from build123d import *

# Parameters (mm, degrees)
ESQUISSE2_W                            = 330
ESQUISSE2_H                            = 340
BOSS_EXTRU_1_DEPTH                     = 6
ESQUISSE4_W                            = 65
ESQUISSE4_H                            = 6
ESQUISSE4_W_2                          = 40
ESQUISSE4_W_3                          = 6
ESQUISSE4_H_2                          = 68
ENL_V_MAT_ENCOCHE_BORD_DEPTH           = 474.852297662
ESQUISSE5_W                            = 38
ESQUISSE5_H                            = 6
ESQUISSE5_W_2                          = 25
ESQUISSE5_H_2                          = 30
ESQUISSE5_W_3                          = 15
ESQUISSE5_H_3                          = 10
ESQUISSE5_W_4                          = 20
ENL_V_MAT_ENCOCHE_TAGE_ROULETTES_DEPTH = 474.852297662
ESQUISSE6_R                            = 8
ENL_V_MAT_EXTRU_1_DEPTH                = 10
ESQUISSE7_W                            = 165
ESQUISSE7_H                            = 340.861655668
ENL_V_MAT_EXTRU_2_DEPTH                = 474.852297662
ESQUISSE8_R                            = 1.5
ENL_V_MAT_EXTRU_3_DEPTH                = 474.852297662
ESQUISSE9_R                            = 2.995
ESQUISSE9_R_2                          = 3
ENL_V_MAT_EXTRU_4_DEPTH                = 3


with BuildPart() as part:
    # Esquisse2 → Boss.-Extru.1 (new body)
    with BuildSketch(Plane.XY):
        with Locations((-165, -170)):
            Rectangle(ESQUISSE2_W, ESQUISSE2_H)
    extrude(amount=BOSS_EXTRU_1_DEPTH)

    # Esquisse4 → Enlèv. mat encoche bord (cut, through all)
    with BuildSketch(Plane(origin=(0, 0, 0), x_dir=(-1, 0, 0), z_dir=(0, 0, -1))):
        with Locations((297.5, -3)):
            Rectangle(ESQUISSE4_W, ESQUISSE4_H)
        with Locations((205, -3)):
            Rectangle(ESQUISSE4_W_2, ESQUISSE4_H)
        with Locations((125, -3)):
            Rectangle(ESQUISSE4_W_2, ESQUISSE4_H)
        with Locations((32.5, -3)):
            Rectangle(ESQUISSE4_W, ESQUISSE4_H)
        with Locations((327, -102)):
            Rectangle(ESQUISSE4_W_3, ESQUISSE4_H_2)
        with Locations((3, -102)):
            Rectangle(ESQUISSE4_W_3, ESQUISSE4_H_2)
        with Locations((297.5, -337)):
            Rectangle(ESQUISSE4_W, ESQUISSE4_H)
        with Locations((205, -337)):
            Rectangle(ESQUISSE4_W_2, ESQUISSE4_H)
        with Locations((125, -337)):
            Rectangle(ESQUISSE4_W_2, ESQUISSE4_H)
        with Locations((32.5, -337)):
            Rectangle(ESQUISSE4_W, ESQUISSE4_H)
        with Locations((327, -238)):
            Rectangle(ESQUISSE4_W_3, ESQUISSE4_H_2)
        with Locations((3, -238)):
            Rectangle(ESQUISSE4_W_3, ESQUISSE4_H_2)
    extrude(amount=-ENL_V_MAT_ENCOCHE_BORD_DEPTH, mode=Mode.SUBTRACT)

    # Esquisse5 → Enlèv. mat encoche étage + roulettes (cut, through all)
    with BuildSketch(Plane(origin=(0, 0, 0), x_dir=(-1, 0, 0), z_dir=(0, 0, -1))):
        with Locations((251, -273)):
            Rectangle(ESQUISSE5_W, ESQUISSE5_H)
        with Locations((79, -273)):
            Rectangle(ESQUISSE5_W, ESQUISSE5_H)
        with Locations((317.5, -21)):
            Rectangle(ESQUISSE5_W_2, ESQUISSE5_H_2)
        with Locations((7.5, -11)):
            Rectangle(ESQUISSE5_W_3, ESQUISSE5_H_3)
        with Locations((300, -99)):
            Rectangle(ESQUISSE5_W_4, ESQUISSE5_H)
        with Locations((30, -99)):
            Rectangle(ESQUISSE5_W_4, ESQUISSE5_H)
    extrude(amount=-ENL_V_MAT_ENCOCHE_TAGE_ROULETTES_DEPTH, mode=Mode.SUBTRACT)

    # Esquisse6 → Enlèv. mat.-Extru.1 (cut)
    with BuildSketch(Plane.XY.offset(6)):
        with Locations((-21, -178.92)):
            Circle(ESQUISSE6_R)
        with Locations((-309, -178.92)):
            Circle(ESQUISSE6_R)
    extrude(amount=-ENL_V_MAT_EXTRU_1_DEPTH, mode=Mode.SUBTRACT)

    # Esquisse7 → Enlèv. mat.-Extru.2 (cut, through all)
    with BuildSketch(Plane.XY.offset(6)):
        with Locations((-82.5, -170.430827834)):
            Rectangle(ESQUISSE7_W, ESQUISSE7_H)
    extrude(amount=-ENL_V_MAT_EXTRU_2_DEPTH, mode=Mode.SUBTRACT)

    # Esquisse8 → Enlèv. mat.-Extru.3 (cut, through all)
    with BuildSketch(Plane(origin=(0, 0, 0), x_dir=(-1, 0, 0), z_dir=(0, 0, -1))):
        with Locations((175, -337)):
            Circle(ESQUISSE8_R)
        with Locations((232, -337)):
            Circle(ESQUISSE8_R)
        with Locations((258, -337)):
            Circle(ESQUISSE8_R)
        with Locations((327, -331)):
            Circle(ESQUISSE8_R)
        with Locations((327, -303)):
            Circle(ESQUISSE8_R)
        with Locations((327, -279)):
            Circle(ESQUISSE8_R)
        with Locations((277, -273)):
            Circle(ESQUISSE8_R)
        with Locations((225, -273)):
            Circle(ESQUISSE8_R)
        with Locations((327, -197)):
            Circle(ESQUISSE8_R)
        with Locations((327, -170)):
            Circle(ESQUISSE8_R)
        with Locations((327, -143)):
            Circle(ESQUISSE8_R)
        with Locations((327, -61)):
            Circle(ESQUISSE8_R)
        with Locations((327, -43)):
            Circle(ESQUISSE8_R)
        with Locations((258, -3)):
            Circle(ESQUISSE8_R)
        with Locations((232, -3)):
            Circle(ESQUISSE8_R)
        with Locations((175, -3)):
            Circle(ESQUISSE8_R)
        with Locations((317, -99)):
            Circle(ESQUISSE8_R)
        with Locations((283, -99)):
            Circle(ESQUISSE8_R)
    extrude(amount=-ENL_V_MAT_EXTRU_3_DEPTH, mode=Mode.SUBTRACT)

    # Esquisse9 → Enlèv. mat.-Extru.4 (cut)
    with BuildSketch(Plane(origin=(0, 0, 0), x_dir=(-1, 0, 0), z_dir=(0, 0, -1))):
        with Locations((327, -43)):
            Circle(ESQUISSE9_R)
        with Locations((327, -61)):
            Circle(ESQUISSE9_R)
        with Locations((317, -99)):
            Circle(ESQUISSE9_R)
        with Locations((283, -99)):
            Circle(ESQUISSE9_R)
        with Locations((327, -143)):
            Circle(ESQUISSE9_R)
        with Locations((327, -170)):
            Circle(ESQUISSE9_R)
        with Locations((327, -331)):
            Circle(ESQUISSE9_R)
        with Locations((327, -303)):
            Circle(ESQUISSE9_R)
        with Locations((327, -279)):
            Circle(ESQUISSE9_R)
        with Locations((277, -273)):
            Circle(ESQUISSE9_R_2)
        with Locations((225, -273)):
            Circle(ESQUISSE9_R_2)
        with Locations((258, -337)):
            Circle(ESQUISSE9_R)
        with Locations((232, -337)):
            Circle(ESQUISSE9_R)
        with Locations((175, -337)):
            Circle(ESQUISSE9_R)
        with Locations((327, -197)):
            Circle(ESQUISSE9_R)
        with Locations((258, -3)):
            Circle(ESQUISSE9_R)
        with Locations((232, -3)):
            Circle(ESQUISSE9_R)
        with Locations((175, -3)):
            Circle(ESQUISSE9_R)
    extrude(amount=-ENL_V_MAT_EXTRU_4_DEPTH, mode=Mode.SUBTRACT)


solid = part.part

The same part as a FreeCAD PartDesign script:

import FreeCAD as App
import Part
import Sketcher
from FreeCAD import Vector
Q = App.Units.Quantity

doc = App.newDocument("Part")
body = doc.addObject("PartDesign::Body", "Body")

# Sketch on XY plane
sketch1 = body.newObject("Sketcher::SketchObject", "Sketch")
sketch1.AttachmentSupport = (doc.getObject("XY_Plane"), [""])
sketch1.MapMode = "FlatFace"
sketch1.addGeometry(Part.LineSegment(Vector(-330, 0, 0), Vector(-330, -340, 0)), False)
sketch1.addGeometry(Part.LineSegment(Vector(-330, -340, 0), Vector(0, -340, 0)), False)
sketch1.addGeometry(Part.LineSegment(Vector(0, -340, 0), Vector(0, 0, 0)), False)
sketch1.addGeometry(Part.LineSegment(Vector(0, 0, 0), Vector(-330, 0, 0)), False)
sketch1.addConstraint(Sketcher.Constraint("Coincident", 0, 2, 1, 1))
sketch1.addConstraint(Sketcher.Constraint("Coincident", 1, 2, 2, 1))
sketch1.addConstraint(Sketcher.Constraint("Coincident", 2, 2, 3, 1))
sketch1.addConstraint(Sketcher.Constraint("Coincident", 3, 2, 0, 1))
sketch1.addConstraint(Sketcher.Constraint("Vertical", 0))
sketch1.addConstraint(Sketcher.Constraint("Horizontal", 1))
sketch1.addConstraint(Sketcher.Constraint("Vertical", 2))
sketch1.addConstraint(Sketcher.Constraint("Horizontal", 3))
sketch1.addConstraint(Sketcher.Constraint("Coincident", 2, 2, -1, 1))
sketch1.addConstraint(Sketcher.Constraint("DistanceX", 1, 1, 1, 2, Q("330 mm")))
sketch1.addConstraint(Sketcher.Constraint("DistanceY", 0, 2, 0, 1, Q("340 mm")))
pad1 = body.newObject("PartDesign::Pad", "Pad")
pad1.Profile = sketch1
pad1.Length = 6

# Sketch on XY plane
sketch2 = body.newObject("Sketcher::SketchObject", "Sketch001")
sketch2.AttachmentSupport = (doc.getObject("XY_Plane"), [""])
sketch2.MapMode = "FlatFace"
sketch2.addGeometry(Part.LineSegment(Vector(-265, 0, 0), Vector(-265, -6, 0)), False)
sketch2.addGeometry(Part.LineSegment(Vector(-265, -6, 0), Vector(-330, -6, 0)), False)
sketch2.addGeometry(Part.LineSegment(Vector(-330, -6, 0), Vector(-330, 0, 0)), False)
sketch2.addGeometry(Part.LineSegment(Vector(-330, 0, 0), Vector(-265, 0, 0)), False)
sketch2.addGeometry(Part.LineSegment(Vector(-185, 0, 0), Vector(-185, -6, 0)), False)
sketch2.addGeometry(Part.LineSegment(Vector(-185, -6, 0), Vector(-225, -6, 0)), False)
sketch2.addGeometry(Part.LineSegment(Vector(-225, -6, 0), Vector(-225, 0, 0)), False)
sketch2.addGeometry(Part.LineSegment(Vector(-225, 0, 0), Vector(-185, 0, 0)), False)
sketch2.addGeometry(Part.LineSegment(Vector(-105, 0, 0), Vector(-105, -6, 0)), False)
sketch2.addGeometry(Part.LineSegment(Vector(-105, -6, 0), Vector(-145, -6, 0)), False)
sketch2.addGeometry(Part.LineSegment(Vector(-145, -6, 0), Vector(-145, 0, 0)), False)
sketch2.addGeometry(Part.LineSegment(Vector(-145, 0, 0), Vector(-105, 0, 0)), False)
sketch2.addGeometry(Part.LineSegment(Vector(0, 0, 0), Vector(0, -6, 0)), False)
sketch2.addGeometry(Part.LineSegment(Vector(0, -6, 0), Vector(-65, -6, 0)), False)
sketch2.addGeometry(Part.LineSegment(Vector(-65, -6, 0), Vector(-65, 0, 0)), False)
sketch2.addGeometry(Part.LineSegment(Vector(-65, 0, 0), Vector(0, 0, 0)), False)
sketch2.addGeometry(Part.LineSegment(Vector(-324, -68, 0), Vector(-324, -136, 0)), False)
sketch2.addGeometry(Part.LineSegment(Vector(-324, -136, 0), Vector(-330, -136, 0)), False)
sketch2.addGeometry(Part.LineSegment(Vector(-330, -136, 0), Vector(-330, -68, 0)), False)
sketch2.addGeometry(Part.LineSegment(Vector(-330, -68, 0), Vector(-324, -68, 0)), False)
sketch2.addGeometry(Part.LineSegment(Vector(0, -68, 0), Vector(0, -136, 0)), False)
sketch2.addGeometry(Part.LineSegment(Vector(0, -136, 0), Vector(-6, -136, 0)), False)
sketch2.addGeometry(Part.LineSegment(Vector(-6, -136, 0), Vector(-6, -68, 0)), False)
sketch2.addGeometry(Part.LineSegment(Vector(-6, -68, 0), Vector(0, -68, 0)), False)
sketch2.addGeometry(Part.LineSegment(Vector(-265, -334, 0), Vector(-265, -340, 0)), False)
sketch2.addGeometry(Part.LineSegment(Vector(-265, -340, 0), Vector(-330, -340, 0)), False)
sketch2.addGeometry(Part.LineSegment(Vector(-330, -340, 0), Vector(-330, -334, 0)), False)
sketch2.addGeometry(Part.LineSegment(Vector(-330, -334, 0), Vector(-265, -334, 0)), False)
sketch2.addGeometry(Part.LineSegment(Vector(-185, -334, 0), Vector(-185, -340, 0)), False)
sketch2.addGeometry(Part.LineSegment(Vector(-185, -340, 0), Vector(-225, -340, 0)), False)
sketch2.addGeometry(Part.LineSegment(Vector(-225, -340, 0), Vector(-225, -334, 0)), False)
sketch2.addGeometry(Part.LineSegment(Vector(-225, -334, 0), Vector(-185, -334, 0)), False)
sketch2.addGeometry(Part.LineSegment(Vector(-105, -334, 0), Vector(-105, -340, 0)), False)
sketch2.addGeometry(Part.LineSegment(Vector(-105, -340, 0), Vector(-145, -340, 0)), False)
sketch2.addGeometry(Part.LineSegment(Vector(-145, -340, 0), Vector(-145, -334, 0)), False)
sketch2.addGeometry(Part.LineSegment(Vector(-145, -334, 0), Vector(-105, -334, 0)), False)
sketch2.addGeometry(Part.LineSegment(Vector(0, -334, 0), Vector(0, -340, 0)), False)
sketch2.addGeometry(Part.LineSegment(Vector(0, -340, 0), Vector(-65, -340, 0)), False)
sketch2.addGeometry(Part.LineSegment(Vector(-65, -340, 0), Vector(-65, -334, 0)), False)
sketch2.addGeometry(Part.LineSegment(Vector(-65, -334, 0), Vector(0, -334, 0)), False)
sketch2.addGeometry(Part.LineSegment(Vector(-324, -204, 0), Vector(-324, -272, 0)), False)
sketch2.addGeometry(Part.LineSegment(Vector(-324, -272, 0), Vector(-330, -272, 0)), False)
sketch2.addGeometry(Part.LineSegment(Vector(-330, -272, 0), Vector(-330, -204, 0)), False)
sketch2.addGeometry(Part.LineSegment(Vector(-330, -204, 0), Vector(-324, -204, 0)), False)
sketch2.addGeometry(Part.LineSegment(Vector(0, -204, 0), Vector(0, -272, 0)), False)
sketch2.addGeometry(Part.LineSegment(Vector(0, -272, 0), Vector(-6, -272, 0)), False)
sketch2.addGeometry(Part.LineSegment(Vector(-6, -272, 0), Vector(-6, -204, 0)), False)
sketch2.addGeometry(Part.LineSegment(Vector(-6, -204, 0), Vector(0, -204, 0)), False)
sketch2.addConstraint(Sketcher.Constraint("Coincident", 0, 2, 1, 1))
sketch2.addConstraint(Sketcher.Constraint("Coincident", 1, 2, 2, 1))
sketch2.addConstraint(Sketcher.Constraint("Coincident", 2, 2, 3, 1))
sketch2.addConstraint(Sketcher.Constraint("Coincident", 3, 2, 0, 1))
sketch2.addConstraint(Sketcher.Constraint("Coincident", 4, 2, 5, 1))
sketch2.addConstraint(Sketcher.Constraint("Coincident", 5, 2, 6, 1))
sketch2.addConstraint(Sketcher.Constraint("Coincident", 6, 2, 7, 1))
sketch2.addConstraint(Sketcher.Constraint("Coincident", 7, 2, 4, 1))
sketch2.addConstraint(Sketcher.Constraint("Coincident", 8, 2, 9, 1))
sketch2.addConstraint(Sketcher.Constraint("Coincident", 9, 2, 10, 1))
sketch2.addConstraint(Sketcher.Constraint("Coincident", 10, 2, 11, 1))
sketch2.addConstraint(Sketcher.Constraint("Coincident", 11, 2, 8, 1))
sketch2.addConstraint(Sketcher.Constraint("Coincident", 12, 2, 13, 1))
sketch2.addConstraint(Sketcher.Constraint("Coincident", 13, 2, 14, 1))
sketch2.addConstraint(Sketcher.Constraint("Coincident", 14, 2, 15, 1))
sketch2.addConstraint(Sketcher.Constraint("Coincident", 15, 2, 12, 1))
sketch2.addConstraint(Sketcher.Constraint("Coincident", 16, 2, 17, 1))
sketch2.addConstraint(Sketcher.Constraint("Coincident", 17, 2, 18, 1))
sketch2.addConstraint(Sketcher.Constraint("Coincident", 18, 2, 19, 1))
sketch2.addConstraint(Sketcher.Constraint("Coincident", 19, 2, 16, 1))
sketch2.addConstraint(Sketcher.Constraint("Coincident", 20, 2, 21, 1))
sketch2.addConstraint(Sketcher.Constraint("Coincident", 21, 2, 22, 1))
sketch2.addConstraint(Sketcher.Constraint("Coincident", 22, 2, 23, 1))
sketch2.addConstraint(Sketcher.Constraint("Coincident", 23, 2, 20, 1))
sketch2.addConstraint(Sketcher.Constraint("Coincident", 24, 2, 25, 1))
sketch2.addConstraint(Sketcher.Constraint("Coincident", 25, 2, 26, 1))
sketch2.addConstraint(Sketcher.Constraint("Coincident", 26, 2, 27, 1))
sketch2.addConstraint(Sketcher.Constraint("Coincident", 27, 2, 24, 1))
sketch2.addConstraint(Sketcher.Constraint("Coincident", 28, 2, 29, 1))
sketch2.addConstraint(Sketcher.Constraint("Coincident", 29, 2, 30, 1))
sketch2.addConstraint(Sketcher.Constraint("Coincident", 30, 2, 31, 1))
sketch2.addConstraint(Sketcher.Constraint("Coincident", 31, 2, 28, 1))
sketch2.addConstraint(Sketcher.Constraint("Coincident", 32, 2, 33, 1))
sketch2.addConstraint(Sketcher.Constraint("Coincident", 33, 2, 34, 1))
sketch2.addConstraint(Sketcher.Constraint("Coincident", 34, 2, 35, 1))
sketch2.addConstraint(Sketcher.Constraint("Coincident", 35, 2, 32, 1))
sketch2.addConstraint(Sketcher.Constraint("Coincident", 36, 2, 37, 1))
sketch2.addConstraint(Sketcher.Constraint("Coincident", 37, 2, 38, 1))
sketch2.addConstraint(Sketcher.Constraint("Coincident", 38, 2, 39, 1))
sketch2.addConstraint(Sketcher.Constraint("Coincident", 39, 2, 36, 1))
sketch2.addConstraint(Sketcher.Constraint("Coincident", 40, 2, 41, 1))
sketch2.addConstraint(Sketcher.Constraint("Coincident", 41, 2, 42, 1))
sketch2.addConstraint(Sketcher.Constraint("Coincident", 42, 2, 43, 1))
sketch2.addConstraint(Sketcher.Constraint("Coincident", 43, 2, 40, 1))
sketch2.addConstraint(Sketcher.Constraint("Coincident", 44, 2, 45, 1))
sketch2.addConstraint(Sketcher.Constraint("Coincident", 45, 2, 46, 1))
sketch2.addConstraint(Sketcher.Constraint("Coincident", 46, 2, 47, 1))
sketch2.addConstraint(Sketcher.Constraint("Coincident", 47, 2, 44, 1))
sketch2.addConstraint(Sketcher.Constraint("Vertical", 0))
sketch2.addConstraint(Sketcher.Constraint("Horizontal", 1))
sketch2.addConstraint(Sketcher.Constraint("Vertical", 2))
sketch2.addConstraint(Sketcher.Constraint("Horizontal", 3))
sketch2.addConstraint(Sketcher.Constraint("Vertical", 4))
sketch2.addConstraint(Sketcher.Constraint("Horizontal", 5))
sketch2.addConstraint(Sketcher.Constraint("Vertical", 6))
sketch2.addConstraint(Sketcher.Constraint("Horizontal", 7))
sketch2.addConstraint(Sketcher.Constraint("Vertical", 8))
sketch2.addConstraint(Sketcher.Constraint("Horizontal", 9))
sketch2.addConstraint(Sketcher.Constraint("Vertical", 10))
sketch2.addConstraint(Sketcher.Constraint("Horizontal", 11))
sketch2.addConstraint(Sketcher.Constraint("Vertical", 12))
sketch2.addConstraint(Sketcher.Constraint("Horizontal", 13))
sketch2.addConstraint(Sketcher.Constraint("Vertical", 14))
sketch2.addConstraint(Sketcher.Constraint("Horizontal", 15))
sketch2.addConstraint(Sketcher.Constraint("Vertical", 16))
sketch2.addConstraint(Sketcher.Constraint("Horizontal", 17))
sketch2.addConstraint(Sketcher.Constraint("Vertical", 18))
sketch2.addConstraint(Sketcher.Constraint("Horizontal", 19))
sketch2.addConstraint(Sketcher.Constraint("Vertical", 20))
sketch2.addConstraint(Sketcher.Constraint("Horizontal", 21))
sketch2.addConstraint(Sketcher.Constraint("Vertical", 22))
sketch2.addConstraint(Sketcher.Constraint("Horizontal", 23))
sketch2.addConstraint(Sketcher.Constraint("Vertical", 24))
sketch2.addConstraint(Sketcher.Constraint("Horizontal", 25))
sketch2.addConstraint(Sketcher.Constraint("Vertical", 26))
sketch2.addConstraint(Sketcher.Constraint("Horizontal", 27))
sketch2.addConstraint(Sketcher.Constraint("Vertical", 28))
sketch2.addConstraint(Sketcher.Constraint("Horizontal", 29))
sketch2.addConstraint(Sketcher.Constraint("Vertical", 30))
sketch2.addConstraint(Sketcher.Constraint("Horizontal", 31))
sketch2.addConstraint(Sketcher.Constraint("Vertical", 32))
sketch2.addConstraint(Sketcher.Constraint("Horizontal", 33))
sketch2.addConstraint(Sketcher.Constraint("Vertical", 34))
sketch2.addConstraint(Sketcher.Constraint("Horizontal", 35))
sketch2.addConstraint(Sketcher.Constraint("Vertical", 36))
sketch2.addConstraint(Sketcher.Constraint("Horizontal", 37))
sketch2.addConstraint(Sketcher.Constraint("Vertical", 38))
sketch2.addConstraint(Sketcher.Constraint("Horizontal", 39))
sketch2.addConstraint(Sketcher.Constraint("Vertical", 40))
sketch2.addConstraint(Sketcher.Constraint("Horizontal", 41))
sketch2.addConstraint(Sketcher.Constraint("Vertical", 42))
sketch2.addConstraint(Sketcher.Constraint("Horizontal", 43))
sketch2.addConstraint(Sketcher.Constraint("Vertical", 44))
sketch2.addConstraint(Sketcher.Constraint("Horizontal", 45))
sketch2.addConstraint(Sketcher.Constraint("Vertical", 46))
sketch2.addConstraint(Sketcher.Constraint("Horizontal", 47))
sketch2.addConstraint(Sketcher.Constraint("Coincident", 15, 2, -1, 1))
sketch2.addConstraint(Sketcher.Constraint("PointOnObject", 2, 2, -1))
sketch2.addConstraint(Sketcher.Constraint("PointOnObject", 6, 2, -1))
sketch2.addConstraint(Sketcher.Constraint("PointOnObject", 10, 2, -1))
sketch2.addConstraint(Sketcher.Constraint("PointOnObject", 20, 2, -2))
sketch2.addConstraint(Sketcher.Constraint("PointOnObject", 36, 2, -2))
sketch2.addConstraint(Sketcher.Constraint("PointOnObject", 44, 2, -2))
sketch2.addConstraint(Sketcher.Constraint("Horizontal", 1, 2, 4, 2))
sketch2.addConstraint(Sketcher.Constraint("Horizontal", 5, 2, 8, 2))
sketch2.addConstraint(Sketcher.Constraint("Horizontal", 9, 2, 12, 2))
sketch2.addConstraint(Sketcher.Constraint("Horizontal", 17, 2, 20, 2))
sketch2.addConstraint(Sketcher.Constraint("Horizontal", 19, 2, 22, 2))
sketch2.addConstraint(Sketcher.Constraint("Horizontal", 25, 2, 28, 2))
sketch2.addConstraint(Sketcher.Constraint("Horizontal", 27, 2, 30, 2))
sketch2.addConstraint(Sketcher.Constraint("Horizontal", 29, 2, 32, 2))
sketch2.addConstraint(Sketcher.Constraint("Horizontal", 31, 2, 34, 2))
sketch2.addConstraint(Sketcher.Constraint("Horizontal", 33, 2, 36, 2))
sketch2.addConstraint(Sketcher.Constraint("Horizontal", 35, 2, 38, 2))
sketch2.addConstraint(Sketcher.Constraint("Horizontal", 41, 2, 44, 2))
sketch2.addConstraint(Sketcher.Constraint("Horizontal", 43, 2, 46, 2))
sketch2.addConstraint(Sketcher.Constraint("Vertical", 2, 2, 17, 2))
sketch2.addConstraint(Sketcher.Constraint("Vertical", 3, 2, 24, 2))
sketch2.addConstraint(Sketcher.Constraint("Vertical", 18, 2, 25, 2))
sketch2.addConstraint(Sketcher.Constraint("Vertical", 7, 2, 28, 2))
sketch2.addConstraint(Sketcher.Constraint("Vertical", 6, 2, 29, 2))
sketch2.addConstraint(Sketcher.Constraint("Vertical", 11, 2, 32, 2))
sketch2.addConstraint(Sketcher.Constraint("Vertical", 10, 2, 33, 2))
sketch2.addConstraint(Sketcher.Constraint("Vertical", 14, 2, 37, 2))
sketch2.addConstraint(Sketcher.Constraint("Vertical", 19, 2, 40, 2))
sketch2.addConstraint(Sketcher.Constraint("Vertical", 26, 2, 41, 2))
sketch2.addConstraint(Sketcher.Constraint("Vertical", 22, 2, 45, 2))
sketch2.addConstraint(Sketcher.Constraint("Equal", 7, 9))
sketch2.addConstraint(Sketcher.Constraint("Equal", 3, 13))
sketch2.addConstraint(Sketcher.Constraint("Equal", 19, 21))
sketch2.addConstraint(Sketcher.Constraint("Equal", 47, 0))
sketch2.addConstraint(Sketcher.Constraint("Equal", 14, 24))
sketch2.addConstraint(Sketcher.Constraint("Equal", 22, 40))
sketch2.addConstraint(Sketcher.Constraint("DistanceX", 1, 2, 1, 1, Q("65 mm")))
sketch2.addConstraint(Sketcher.Constraint("DistanceX", 5, 2, 5, 1, Q("40 mm")))
sketch2.addConstraint(Sketcher.Constraint("DistanceX", 17, 2, 17, 1, Q("6 mm")))
sketch2.addConstraint(Sketcher.Constraint("DistanceY", 16, 2, 16, 1, Q("68 mm")))
sketch2.addConstraint(Sketcher.Constraint("DistanceX", 0, 2, -1, 1, Q("265 mm")))
sketch2.addConstraint(Sketcher.Constraint("DistanceX", 4, 2, -1, 1, Q("185 mm")))
sketch2.addConstraint(Sketcher.Constraint("DistanceX", 8, 2, -1, 1, Q("105 mm")))
sketch2.addConstraint(Sketcher.Constraint("DistanceY", 16, 2, -1, 1, Q("136 mm")))
sketch2.addConstraint(Sketcher.Constraint("DistanceY", 24, 2, -1, 1, Q("340 mm")))
sketch2.addConstraint(Sketcher.Constraint("DistanceY", 40, 2, -1, 1, Q("272 mm")))
pocket1 = body.newObject("PartDesign::Pocket", "Pocket")
pocket1.Profile = sketch2
pocket1.Type = "ThroughAll"
pocket1.Reversed = True

# Sketch on XY plane
sketch3 = body.newObject("Sketcher::SketchObject", "Sketch002")
sketch3.AttachmentSupport = (doc.getObject("XY_Plane"), [""])
sketch3.MapMode = "FlatFace"
sketch3.addGeometry(Part.LineSegment(Vector(-232, -270, 0), Vector(-232, -276, 0)), False)
sketch3.addGeometry(Part.LineSegment(Vector(-232, -276, 0), Vector(-270, -276, 0)), False)
sketch3.addGeometry(Part.LineSegment(Vector(-270, -276, 0), Vector(-270, -270, 0)), False)
sketch3.addGeometry(Part.LineSegment(Vector(-270, -270, 0), Vector(-232, -270, 0)), False)
sketch3.addGeometry(Part.LineSegment(Vector(-60, -270, 0), Vector(-60, -276, 0)), False)
sketch3.addGeometry(Part.LineSegment(Vector(-60, -276, 0), Vector(-98, -276, 0)), False)
sketch3.addGeometry(Part.LineSegment(Vector(-98, -276, 0), Vector(-98, -270, 0)), False)
sketch3.addGeometry(Part.LineSegment(Vector(-98, -270, 0), Vector(-60, -270, 0)), False)
sketch3.addGeometry(Part.LineSegment(Vector(-305, -6, 0), Vector(-305, -36, 0)), False)
sketch3.addGeometry(Part.LineSegment(Vector(-305, -36, 0), Vector(-330, -36, 0)), False)
sketch3.addGeometry(Part.LineSegment(Vector(-330, -36, 0), Vector(-330, -6, 0)), False)
sketch3.addGeometry(Part.LineSegment(Vector(-330, -6, 0), Vector(-305, -6, 0)), False)
sketch3.addGeometry(Part.LineSegment(Vector(0, -6, 0), Vector(0, -16, 0)), False)
sketch3.addGeometry(Part.LineSegment(Vector(0, -16, 0), Vector(-15, -16, 0)), False)
sketch3.addGeometry(Part.LineSegment(Vector(-15, -16, 0), Vector(-15, -6, 0)), False)
sketch3.addGeometry(Part.LineSegment(Vector(-15, -6, 0), Vector(0, -6, 0)), False)
sketch3.addGeometry(Part.LineSegment(Vector(-290, -96, 0), Vector(-290, -102, 0)), False)
sketch3.addGeometry(Part.LineSegment(Vector(-290, -102, 0), Vector(-310, -102, 0)), False)
sketch3.addGeometry(Part.LineSegment(Vector(-310, -102, 0), Vector(-310, -96, 0)), False)
sketch3.addGeometry(Part.LineSegment(Vector(-310, -96, 0), Vector(-290, -96, 0)), False)
sketch3.addGeometry(Part.LineSegment(Vector(-20, -96, 0), Vector(-20, -102, 0)), False)
sketch3.addGeometry(Part.LineSegment(Vector(-20, -102, 0), Vector(-40, -102, 0)), False)
sketch3.addGeometry(Part.LineSegment(Vector(-40, -102, 0), Vector(-40, -96, 0)), False)
sketch3.addGeometry(Part.LineSegment(Vector(-40, -96, 0), Vector(-20, -96, 0)), False)
sketch3.addConstraint(Sketcher.Constraint("Coincident", 0, 2, 1, 1))
sketch3.addConstraint(Sketcher.Constraint("Coincident", 1, 2, 2, 1))
sketch3.addConstraint(Sketcher.Constraint("Coincident", 2, 2, 3, 1))
sketch3.addConstraint(Sketcher.Constraint("Coincident", 3, 2, 0, 1))
sketch3.addConstraint(Sketcher.Constraint("Coincident", 4, 2, 5, 1))
sketch3.addConstraint(Sketcher.Constraint("Coincident", 5, 2, 6, 1))
sketch3.addConstraint(Sketcher.Constraint("Coincident", 6, 2, 7, 1))
sketch3.addConstraint(Sketcher.Constraint("Coincident", 7, 2, 4, 1))
sketch3.addConstraint(Sketcher.Constraint("Coincident", 8, 2, 9, 1))
sketch3.addConstraint(Sketcher.Constraint("Coincident", 9, 2, 10, 1))
sketch3.addConstraint(Sketcher.Constraint("Coincident", 10, 2, 11, 1))
sketch3.addConstraint(Sketcher.Constraint("Coincident", 11, 2, 8, 1))
sketch3.addConstraint(Sketcher.Constraint("Coincident", 12, 2, 13, 1))
sketch3.addConstraint(Sketcher.Constraint("Coincident", 13, 2, 14, 1))
sketch3.addConstraint(Sketcher.Constraint("Coincident", 14, 2, 15, 1))
sketch3.addConstraint(Sketcher.Constraint("Coincident", 15, 2, 12, 1))
sketch3.addConstraint(Sketcher.Constraint("Coincident", 16, 2, 17, 1))
sketch3.addConstraint(Sketcher.Constraint("Coincident", 17, 2, 18, 1))
sketch3.addConstraint(Sketcher.Constraint("Coincident", 18, 2, 19, 1))
sketch3.addConstraint(Sketcher.Constraint("Coincident", 19, 2, 16, 1))
sketch3.addConstraint(Sketcher.Constraint("Coincident", 20, 2, 21, 1))
sketch3.addConstraint(Sketcher.Constraint("Coincident", 21, 2, 22, 1))
sketch3.addConstraint(Sketcher.Constraint("Coincident", 22, 2, 23, 1))
sketch3.addConstraint(Sketcher.Constraint("Coincident", 23, 2, 20, 1))
sketch3.addConstraint(Sketcher.Constraint("Vertical", 0))
sketch3.addConstraint(Sketcher.Constraint("Horizontal", 1))
sketch3.addConstraint(Sketcher.Constraint("Vertical", 2))
sketch3.addConstraint(Sketcher.Constraint("Horizontal", 3))
sketch3.addConstraint(Sketcher.Constraint("Vertical", 4))
sketch3.addConstraint(Sketcher.Constraint("Horizontal", 5))
sketch3.addConstraint(Sketcher.Constraint("Vertical", 6))
sketch3.addConstraint(Sketcher.Constraint("Horizontal", 7))
sketch3.addConstraint(Sketcher.Constraint("Vertical", 8))
sketch3.addConstraint(Sketcher.Constraint("Horizontal", 9))
sketch3.addConstraint(Sketcher.Constraint("Vertical", 10))
sketch3.addConstraint(Sketcher.Constraint("Horizontal", 11))
sketch3.addConstraint(Sketcher.Constraint("Vertical", 12))
sketch3.addConstraint(Sketcher.Constraint("Horizontal", 13))
sketch3.addConstraint(Sketcher.Constraint("Vertical", 14))
sketch3.addConstraint(Sketcher.Constraint("Horizontal", 15))
sketch3.addConstraint(Sketcher.Constraint("Vertical", 16))
sketch3.addConstraint(Sketcher.Constraint("Horizontal", 17))
sketch3.addConstraint(Sketcher.Constraint("Vertical", 18))
sketch3.addConstraint(Sketcher.Constraint("Horizontal", 19))
sketch3.addConstraint(Sketcher.Constraint("Vertical", 20))
sketch3.addConstraint(Sketcher.Constraint("Horizontal", 21))
sketch3.addConstraint(Sketcher.Constraint("Vertical", 22))
sketch3.addConstraint(Sketcher.Constraint("Horizontal", 23))
sketch3.addConstraint(Sketcher.Constraint("PointOnObject", 12, 2, -2))
sketch3.addConstraint(Sketcher.Constraint("Horizontal", 1, 2, 4, 2))
sketch3.addConstraint(Sketcher.Constraint("Horizontal", 3, 2, 6, 2))
sketch3.addConstraint(Sketcher.Constraint("Horizontal", 11, 2, 14, 2))
sketch3.addConstraint(Sketcher.Constraint("Horizontal", 17, 2, 20, 2))
sketch3.addConstraint(Sketcher.Constraint("Horizontal", 19, 2, 22, 2))
sketch3.addConstraint(Sketcher.Constraint("Equal", 3, 5))
sketch3.addConstraint(Sketcher.Constraint("Equal", 19, 21))
sketch3.addConstraint(Sketcher.Constraint("Equal", 6, 16))
sketch3.addConstraint(Sketcher.Constraint("DistanceX", 1, 2, 1, 1, Q("38 mm")))
sketch3.addConstraint(Sketcher.Constraint("DistanceX", 9, 2, 9, 1, Q("25 mm")))
sketch3.addConstraint(Sketcher.Constraint("DistanceX", 13, 2, 13, 1, Q("15 mm")))
sketch3.addConstraint(Sketcher.Constraint("DistanceX", 17, 2, 17, 1, Q("20 mm")))
sketch3.addConstraint(Sketcher.Constraint("DistanceY", 0, 2, 0, 1, Q("6 mm")))
sketch3.addConstraint(Sketcher.Constraint("DistanceY", 8, 2, 8, 1, Q("30 mm")))
sketch3.addConstraint(Sketcher.Constraint("DistanceY", 12, 2, 12, 1, Q("10 mm")))
sketch3.addConstraint(Sketcher.Constraint("DistanceX", 0, 2, -1, 1, Q("232 mm")))
sketch3.addConstraint(Sketcher.Constraint("DistanceY", 0, 2, -1, 1, Q("276 mm")))
sketch3.addConstraint(Sketcher.Constraint("DistanceX", 4, 2, -1, 1, Q("60 mm")))
sketch3.addConstraint(Sketcher.Constraint("DistanceX", 8, 2, -1, 1, Q("305 mm")))
sketch3.addConstraint(Sketcher.Constraint("DistanceY", 8, 2, -1, 1, Q("36 mm")))
sketch3.addConstraint(Sketcher.Constraint("DistanceX", 16, 2, -1, 1, Q("290 mm")))
sketch3.addConstraint(Sketcher.Constraint("DistanceY", 16, 2, -1, 1, Q("102 mm")))
sketch3.addConstraint(Sketcher.Constraint("DistanceX", 20, 2, -1, 1, Q("20 mm")))
pocket2 = body.newObject("PartDesign::Pocket", "Pocket001")
pocket2.Profile = sketch3
pocket2.Type = "ThroughAll"
pocket2.Reversed = True

# Sketch on XY plane
sketch4 = body.newObject("Sketcher::SketchObject", "Sketch003")
sketch4.AttachmentSupport = (doc.getObject("XY_Plane"), [""])
sketch4.MapMode = "FlatFace"
sketch4.AttachmentOffset = App.Placement(Vector(0, 0, 6), App.Rotation())
sketch4.addGeometry(Part.Circle(Vector(-21, -179, 0), Vector(0, 0, 1), 8), False)
sketch4.addGeometry(Part.Circle(Vector(-309, -179, 0), Vector(0, 0, 1), 8), False)
sketch4.addConstraint(Sketcher.Constraint("Equal", 0, 1))
sketch4.addConstraint(Sketcher.Constraint("Horizontal", 0, 3, 1, 3))
sketch4.addConstraint(Sketcher.Constraint("Diameter", 0, Q("16 mm")))
sketch4.addConstraint(Sketcher.Constraint("DistanceX", 0, 3, -1, 1, Q("21 mm")))
sketch4.addConstraint(Sketcher.Constraint("DistanceX", 1, 3, -1, 1, Q("309 mm")))
sketch4.addConstraint(Sketcher.Constraint("DistanceY", 0, 3, -1, 1, Q("178.92 mm")))
pocket3 = body.newObject("PartDesign::Pocket", "Pocket002")
pocket3.Profile = sketch4
pocket3.Length = 10

# Sketch on XY plane
sketch5 = body.newObject("Sketcher::SketchObject", "Sketch004")
sketch5.AttachmentSupport = (doc.getObject("XY_Plane"), [""])
sketch5.MapMode = "FlatFace"
sketch5.AttachmentOffset = App.Placement(Vector(0, 0, 6), App.Rotation())
sketch5.addGeometry(Part.LineSegment(Vector(-165, 0, 0), Vector(-165, -341, 0)), False)
sketch5.addGeometry(Part.LineSegment(Vector(-165, -341, 0), Vector(0, -341, 0)), False)
sketch5.addGeometry(Part.LineSegment(Vector(0, -341, 0), Vector(0, 0, 0)), False)
sketch5.addGeometry(Part.LineSegment(Vector(0, 0, 0), Vector(-165, 0, 0)), False)
sketch5.addConstraint(Sketcher.Constraint("Coincident", 0, 2, 1, 1))
sketch5.addConstraint(Sketcher.Constraint("Coincident", 1, 2, 2, 1))
sketch5.addConstraint(Sketcher.Constraint("Coincident", 2, 2, 3, 1))
sketch5.addConstraint(Sketcher.Constraint("Coincident", 3, 2, 0, 1))
sketch5.addConstraint(Sketcher.Constraint("Vertical", 0))
sketch5.addConstraint(Sketcher.Constraint("Horizontal", 1))
sketch5.addConstraint(Sketcher.Constraint("Vertical", 2))
sketch5.addConstraint(Sketcher.Constraint("Horizontal", 3))
sketch5.addConstraint(Sketcher.Constraint("Coincident", 2, 2, -1, 1))
sketch5.addConstraint(Sketcher.Constraint("DistanceX", 1, 1, 1, 2, Q("165 mm")))
sketch5.addConstraint(Sketcher.Constraint("DistanceY", 0, 2, 0, 1, Q("340.861656 mm")))
pocket4 = body.newObject("PartDesign::Pocket", "Pocket003")
pocket4.Profile = sketch5
pocket4.Type = "ThroughAll"

# Sketch on XY plane
sketch6 = body.newObject("Sketcher::SketchObject", "Sketch005")
sketch6.AttachmentSupport = (doc.getObject("XY_Plane"), [""])
sketch6.MapMode = "FlatFace"
sketch6.addGeometry(Part.Circle(Vector(-175, -337, 0), Vector(0, 0, 1), 1.5), False)
sketch6.addGeometry(Part.Circle(Vector(-232, -337, 0), Vector(0, 0, 1), 1.5), False)
sketch6.addGeometry(Part.Circle(Vector(-258, -337, 0), Vector(0, 0, 1), 1.5), False)
sketch6.addGeometry(Part.Circle(Vector(-327, -331, 0), Vector(0, 0, 1), 1.5), False)
sketch6.addGeometry(Part.Circle(Vector(-327, -303, 0), Vector(0, 0, 1), 1.5), False)
sketch6.addGeometry(Part.Circle(Vector(-327, -279, 0), Vector(0, 0, 1), 1.5), False)
sketch6.addGeometry(Part.Circle(Vector(-277, -273, 0), Vector(0, 0, 1), 1.5), False)
sketch6.addGeometry(Part.Circle(Vector(-225, -273, 0), Vector(0, 0, 1), 1.5), False)
sketch6.addGeometry(Part.Circle(Vector(-327, -197, 0), Vector(0, 0, 1), 1.5), False)
sketch6.addGeometry(Part.Circle(Vector(-327, -170, 0), Vector(0, 0, 1), 1.5), False)
sketch6.addGeometry(Part.Circle(Vector(-327, -143, 0), Vector(0, 0, 1), 1.5), False)
sketch6.addGeometry(Part.Circle(Vector(-327, -61, 0), Vector(0, 0, 1), 1.5), False)
sketch6.addGeometry(Part.Circle(Vector(-327, -43, 0), Vector(0, 0, 1), 1.5), False)
sketch6.addGeometry(Part.Circle(Vector(-258, -3, 0), Vector(0, 0, 1), 1.5), False)
sketch6.addGeometry(Part.Circle(Vector(-232, -3, 0), Vector(0, 0, 1), 1.5), False)
sketch6.addGeometry(Part.Circle(Vector(-175, -3, 0), Vector(0, 0, 1), 1.5), False)
sketch6.addGeometry(Part.Circle(Vector(-317, -99, 0), Vector(0, 0, 1), 1.5), False)
sketch6.addGeometry(Part.Circle(Vector(-283, -99, 0), Vector(0, 0, 1), 1.5), False)
sketch6.addConstraint(Sketcher.Constraint("Equal", 0, 1))
sketch6.addConstraint(Sketcher.Constraint("Equal", 1, 2))
sketch6.addConstraint(Sketcher.Constraint("Equal", 2, 3))
sketch6.addConstraint(Sketcher.Constraint("Equal", 3, 4))
sketch6.addConstraint(Sketcher.Constraint("Equal", 4, 5))
sketch6.addConstraint(Sketcher.Constraint("Equal", 5, 6))
sketch6.addConstraint(Sketcher.Constraint("Equal", 6, 7))
sketch6.addConstraint(Sketcher.Constraint("Equal", 7, 8))
sketch6.addConstraint(Sketcher.Constraint("Equal", 8, 9))
sketch6.addConstraint(Sketcher.Constraint("Equal", 9, 10))
sketch6.addConstraint(Sketcher.Constraint("Equal", 10, 11))
sketch6.addConstraint(Sketcher.Constraint("Equal", 11, 12))
sketch6.addConstraint(Sketcher.Constraint("Equal", 12, 13))
sketch6.addConstraint(Sketcher.Constraint("Equal", 13, 14))
sketch6.addConstraint(Sketcher.Constraint("Equal", 14, 15))
sketch6.addConstraint(Sketcher.Constraint("Equal", 15, 16))
sketch6.addConstraint(Sketcher.Constraint("Equal", 16, 17))
sketch6.addConstraint(Sketcher.Constraint("Horizontal", 0, 3, 1, 3))
sketch6.addConstraint(Sketcher.Constraint("Horizontal", 1, 3, 2, 3))
sketch6.addConstraint(Sketcher.Constraint("Horizontal", 6, 3, 7, 3))
sketch6.addConstraint(Sketcher.Constraint("Horizontal", 13, 3, 14, 3))
sketch6.addConstraint(Sketcher.Constraint("Horizontal", 14, 3, 15, 3))
sketch6.addConstraint(Sketcher.Constraint("Horizontal", 16, 3, 17, 3))
sketch6.addConstraint(Sketcher.Constraint("Vertical", 3, 3, 4, 3))
sketch6.addConstraint(Sketcher.Constraint("Vertical", 4, 3, 5, 3))
sketch6.addConstraint(Sketcher.Constraint("Vertical", 5, 3, 8, 3))
sketch6.addConstraint(Sketcher.Constraint("Vertical", 8, 3, 9, 3))
sketch6.addConstraint(Sketcher.Constraint("Vertical", 9, 3, 10, 3))
sketch6.addConstraint(Sketcher.Constraint("Vertical", 10, 3, 11, 3))
sketch6.addConstraint(Sketcher.Constraint("Vertical", 11, 3, 12, 3))
sketch6.addConstraint(Sketcher.Constraint("Vertical", 2, 3, 13, 3))
sketch6.addConstraint(Sketcher.Constraint("Vertical", 1, 3, 14, 3))
sketch6.addConstraint(Sketcher.Constraint("Vertical", 0, 3, 15, 3))
sketch6.addConstraint(Sketcher.Constraint("Diameter", 0, Q("3 mm")))
sketch6.addConstraint(Sketcher.Constraint("DistanceX", 0, 3, -1, 1, Q("175 mm")))
sketch6.addConstraint(Sketcher.Constraint("DistanceY", 0, 3, -1, 1, Q("337 mm")))
sketch6.addConstraint(Sketcher.Constraint("DistanceX", 1, 3, -1, 1, Q("232 mm")))
sketch6.addConstraint(Sketcher.Constraint("DistanceX", 2, 3, -1, 1, Q("258 mm")))
sketch6.addConstraint(Sketcher.Constraint("DistanceX", 3, 3, -1, 1, Q("327 mm")))
sketch6.addConstraint(Sketcher.Constraint("DistanceY", 3, 3, -1, 1, Q("331 mm")))
sketch6.addConstraint(Sketcher.Constraint("DistanceY", 4, 3, -1, 1, Q("303 mm")))
sketch6.addConstraint(Sketcher.Constraint("DistanceY", 5, 3, -1, 1, Q("279 mm")))
sketch6.addConstraint(Sketcher.Constraint("DistanceX", 6, 3, -1, 1, Q("277 mm")))
sketch6.addConstraint(Sketcher.Constraint("DistanceY", 6, 3, -1, 1, Q("273 mm")))
sketch6.addConstraint(Sketcher.Constraint("DistanceX", 7, 3, -1, 1, Q("225 mm")))
sketch6.addConstraint(Sketcher.Constraint("DistanceY", 8, 3, -1, 1, Q("197 mm")))
sketch6.addConstraint(Sketcher.Constraint("DistanceY", 9, 3, -1, 1, Q("170 mm")))
sketch6.addConstraint(Sketcher.Constraint("DistanceY", 10, 3, -1, 1, Q("143 mm")))
sketch6.addConstraint(Sketcher.Constraint("DistanceY", 11, 3, -1, 1, Q("61 mm")))
sketch6.addConstraint(Sketcher.Constraint("DistanceY", 12, 3, -1, 1, Q("43 mm")))
sketch6.addConstraint(Sketcher.Constraint("DistanceY", 13, 3, -1, 1, Q("3 mm")))
sketch6.addConstraint(Sketcher.Constraint("DistanceX", 16, 3, -1, 1, Q("317 mm")))
sketch6.addConstraint(Sketcher.Constraint("DistanceY", 16, 3, -1, 1, Q("99 mm")))
sketch6.addConstraint(Sketcher.Constraint("DistanceX", 17, 3, -1, 1, Q("283 mm")))
pocket5 = body.newObject("PartDesign::Pocket", "Pocket004")
pocket5.Profile = sketch6
pocket5.Type = "ThroughAll"
pocket5.Reversed = True

# Sketch on XY plane
sketch7 = body.newObject("Sketcher::SketchObject", "Sketch006")
sketch7.AttachmentSupport = (doc.getObject("XY_Plane"), [""])
sketch7.MapMode = "FlatFace"
sketch7.addGeometry(Part.Circle(Vector(-327, -43, 0), Vector(0, 0, 1), 3), False)
sketch7.addGeometry(Part.Circle(Vector(-327, -61, 0), Vector(0, 0, 1), 3), False)
sketch7.addGeometry(Part.Circle(Vector(-317, -99, 0), Vector(0, 0, 1), 3), False)
sketch7.addGeometry(Part.Circle(Vector(-283, -99, 0), Vector(0, 0, 1), 3), False)
sketch7.addGeometry(Part.Circle(Vector(-327, -143, 0), Vector(0, 0, 1), 3), False)
sketch7.addGeometry(Part.Circle(Vector(-327, -170, 0), Vector(0, 0, 1), 3), False)
sketch7.addGeometry(Part.Circle(Vector(-327, -331, 0), Vector(0, 0, 1), 3), False)
sketch7.addGeometry(Part.Circle(Vector(-327, -303, 0), Vector(0, 0, 1), 3), False)
sketch7.addGeometry(Part.Circle(Vector(-327, -279, 0), Vector(0, 0, 1), 3), False)
sketch7.addGeometry(Part.Circle(Vector(-277, -273, 0), Vector(0, 0, 1), 3), False)
sketch7.addGeometry(Part.Circle(Vector(-225, -273, 0), Vector(0, 0, 1), 3), False)
sketch7.addGeometry(Part.Circle(Vector(-258, -337, 0), Vector(0, 0, 1), 3), False)
sketch7.addGeometry(Part.Circle(Vector(-232, -337, 0), Vector(0, 0, 1), 3), False)
sketch7.addGeometry(Part.Circle(Vector(-175, -337, 0), Vector(0, 0, 1), 3), False)
sketch7.addGeometry(Part.Circle(Vector(-327, -197, 0), Vector(0, 0, 1), 3), False)
sketch7.addGeometry(Part.Circle(Vector(-258, -3, 0), Vector(0, 0, 1), 3), False)
sketch7.addGeometry(Part.Circle(Vector(-232, -3, 0), Vector(0, 0, 1), 3), False)
sketch7.addGeometry(Part.Circle(Vector(-175, -3, 0), Vector(0, 0, 1), 3), False)
sketch7.addConstraint(Sketcher.Constraint("Equal", 0, 1))
sketch7.addConstraint(Sketcher.Constraint("Equal", 1, 2))
sketch7.addConstraint(Sketcher.Constraint("Equal", 2, 3))
sketch7.addConstraint(Sketcher.Constraint("Equal", 3, 4))
sketch7.addConstraint(Sketcher.Constraint("Equal", 4, 5))
sketch7.addConstraint(Sketcher.Constraint("Equal", 5, 6))
sketch7.addConstraint(Sketcher.Constraint("Equal", 6, 7))
sketch7.addConstraint(Sketcher.Constraint("Equal", 7, 8))
sketch7.addConstraint(Sketcher.Constraint("Equal", 9, 10))
sketch7.addConstraint(Sketcher.Constraint("Equal", 8, 11))
sketch7.addConstraint(Sketcher.Constraint("Equal", 11, 12))
sketch7.addConstraint(Sketcher.Constraint("Equal", 12, 13))
sketch7.addConstraint(Sketcher.Constraint("Equal", 13, 14))
sketch7.addConstraint(Sketcher.Constraint("Equal", 14, 15))
sketch7.addConstraint(Sketcher.Constraint("Equal", 15, 16))
sketch7.addConstraint(Sketcher.Constraint("Equal", 16, 17))
sketch7.addConstraint(Sketcher.Constraint("Horizontal", 2, 3, 3, 3))
sketch7.addConstraint(Sketcher.Constraint("Horizontal", 9, 3, 10, 3))
sketch7.addConstraint(Sketcher.Constraint("Horizontal", 11, 3, 12, 3))
sketch7.addConstraint(Sketcher.Constraint("Horizontal", 12, 3, 13, 3))
sketch7.addConstraint(Sketcher.Constraint("Horizontal", 15, 3, 16, 3))
sketch7.addConstraint(Sketcher.Constraint("Horizontal", 16, 3, 17, 3))
sketch7.addConstraint(Sketcher.Constraint("Vertical", 0, 3, 1, 3))
sketch7.addConstraint(Sketcher.Constraint("Vertical", 1, 3, 4, 3))
sketch7.addConstraint(Sketcher.Constraint("Vertical", 4, 3, 5, 3))
sketch7.addConstraint(Sketcher.Constraint("Vertical", 5, 3, 6, 3))
sketch7.addConstraint(Sketcher.Constraint("Vertical", 6, 3, 7, 3))
sketch7.addConstraint(Sketcher.Constraint("Vertical", 7, 3, 8, 3))
sketch7.addConstraint(Sketcher.Constraint("Vertical", 8, 3, 14, 3))
sketch7.addConstraint(Sketcher.Constraint("Vertical", 11, 3, 15, 3))
sketch7.addConstraint(Sketcher.Constraint("Vertical", 12, 3, 16, 3))
sketch7.addConstraint(Sketcher.Constraint("Vertical", 13, 3, 17, 3))
sketch7.addConstraint(Sketcher.Constraint("Diameter", 9, Q("6 mm")))
sketch7.addConstraint(Sketcher.Constraint("Diameter", 0, Q("5.99 mm")))
sketch7.addConstraint(Sketcher.Constraint("DistanceX", 0, 3, -1, 1, Q("327 mm")))
sketch7.addConstraint(Sketcher.Constraint("DistanceY", 0, 3, -1, 1, Q("43 mm")))
sketch7.addConstraint(Sketcher.Constraint("DistanceY", 1, 3, -1, 1, Q("61 mm")))
sketch7.addConstraint(Sketcher.Constraint("DistanceX", 2, 3, -1, 1, Q("317 mm")))
sketch7.addConstraint(Sketcher.Constraint("DistanceY", 2, 3, -1, 1, Q("99 mm")))
sketch7.addConstraint(Sketcher.Constraint("DistanceX", 3, 3, -1, 1, Q("283 mm")))
sketch7.addConstraint(Sketcher.Constraint("DistanceY", 4, 3, -1, 1, Q("143 mm")))
sketch7.addConstraint(Sketcher.Constraint("DistanceY", 5, 3, -1, 1, Q("170 mm")))
sketch7.addConstraint(Sketcher.Constraint("DistanceY", 6, 3, -1, 1, Q("331 mm")))
sketch7.addConstraint(Sketcher.Constraint("DistanceY", 7, 3, -1, 1, Q("303 mm")))
sketch7.addConstraint(Sketcher.Constraint("DistanceY", 8, 3, -1, 1, Q("279 mm")))
sketch7.addConstraint(Sketcher.Constraint("DistanceX", 9, 3, -1, 1, Q("277 mm")))
sketch7.addConstraint(Sketcher.Constraint("DistanceY", 9, 3, -1, 1, Q("273 mm")))
sketch7.addConstraint(Sketcher.Constraint("DistanceX", 10, 3, -1, 1, Q("225 mm")))
sketch7.addConstraint(Sketcher.Constraint("DistanceX", 11, 3, -1, 1, Q("258 mm")))
sketch7.addConstraint(Sketcher.Constraint("DistanceY", 11, 3, -1, 1, Q("337 mm")))
sketch7.addConstraint(Sketcher.Constraint("DistanceX", 12, 3, -1, 1, Q("232 mm")))
sketch7.addConstraint(Sketcher.Constraint("DistanceX", 13, 3, -1, 1, Q("175 mm")))
sketch7.addConstraint(Sketcher.Constraint("DistanceY", 14, 3, -1, 1, Q("197 mm")))
sketch7.addConstraint(Sketcher.Constraint("DistanceY", 15, 3, -1, 1, Q("3 mm")))
pocket6 = body.newObject("PartDesign::Pocket", "Pocket005")
pocket6.Profile = sketch7
pocket6.Length = 3
pocket6.Reversed = True

doc.recompute()
